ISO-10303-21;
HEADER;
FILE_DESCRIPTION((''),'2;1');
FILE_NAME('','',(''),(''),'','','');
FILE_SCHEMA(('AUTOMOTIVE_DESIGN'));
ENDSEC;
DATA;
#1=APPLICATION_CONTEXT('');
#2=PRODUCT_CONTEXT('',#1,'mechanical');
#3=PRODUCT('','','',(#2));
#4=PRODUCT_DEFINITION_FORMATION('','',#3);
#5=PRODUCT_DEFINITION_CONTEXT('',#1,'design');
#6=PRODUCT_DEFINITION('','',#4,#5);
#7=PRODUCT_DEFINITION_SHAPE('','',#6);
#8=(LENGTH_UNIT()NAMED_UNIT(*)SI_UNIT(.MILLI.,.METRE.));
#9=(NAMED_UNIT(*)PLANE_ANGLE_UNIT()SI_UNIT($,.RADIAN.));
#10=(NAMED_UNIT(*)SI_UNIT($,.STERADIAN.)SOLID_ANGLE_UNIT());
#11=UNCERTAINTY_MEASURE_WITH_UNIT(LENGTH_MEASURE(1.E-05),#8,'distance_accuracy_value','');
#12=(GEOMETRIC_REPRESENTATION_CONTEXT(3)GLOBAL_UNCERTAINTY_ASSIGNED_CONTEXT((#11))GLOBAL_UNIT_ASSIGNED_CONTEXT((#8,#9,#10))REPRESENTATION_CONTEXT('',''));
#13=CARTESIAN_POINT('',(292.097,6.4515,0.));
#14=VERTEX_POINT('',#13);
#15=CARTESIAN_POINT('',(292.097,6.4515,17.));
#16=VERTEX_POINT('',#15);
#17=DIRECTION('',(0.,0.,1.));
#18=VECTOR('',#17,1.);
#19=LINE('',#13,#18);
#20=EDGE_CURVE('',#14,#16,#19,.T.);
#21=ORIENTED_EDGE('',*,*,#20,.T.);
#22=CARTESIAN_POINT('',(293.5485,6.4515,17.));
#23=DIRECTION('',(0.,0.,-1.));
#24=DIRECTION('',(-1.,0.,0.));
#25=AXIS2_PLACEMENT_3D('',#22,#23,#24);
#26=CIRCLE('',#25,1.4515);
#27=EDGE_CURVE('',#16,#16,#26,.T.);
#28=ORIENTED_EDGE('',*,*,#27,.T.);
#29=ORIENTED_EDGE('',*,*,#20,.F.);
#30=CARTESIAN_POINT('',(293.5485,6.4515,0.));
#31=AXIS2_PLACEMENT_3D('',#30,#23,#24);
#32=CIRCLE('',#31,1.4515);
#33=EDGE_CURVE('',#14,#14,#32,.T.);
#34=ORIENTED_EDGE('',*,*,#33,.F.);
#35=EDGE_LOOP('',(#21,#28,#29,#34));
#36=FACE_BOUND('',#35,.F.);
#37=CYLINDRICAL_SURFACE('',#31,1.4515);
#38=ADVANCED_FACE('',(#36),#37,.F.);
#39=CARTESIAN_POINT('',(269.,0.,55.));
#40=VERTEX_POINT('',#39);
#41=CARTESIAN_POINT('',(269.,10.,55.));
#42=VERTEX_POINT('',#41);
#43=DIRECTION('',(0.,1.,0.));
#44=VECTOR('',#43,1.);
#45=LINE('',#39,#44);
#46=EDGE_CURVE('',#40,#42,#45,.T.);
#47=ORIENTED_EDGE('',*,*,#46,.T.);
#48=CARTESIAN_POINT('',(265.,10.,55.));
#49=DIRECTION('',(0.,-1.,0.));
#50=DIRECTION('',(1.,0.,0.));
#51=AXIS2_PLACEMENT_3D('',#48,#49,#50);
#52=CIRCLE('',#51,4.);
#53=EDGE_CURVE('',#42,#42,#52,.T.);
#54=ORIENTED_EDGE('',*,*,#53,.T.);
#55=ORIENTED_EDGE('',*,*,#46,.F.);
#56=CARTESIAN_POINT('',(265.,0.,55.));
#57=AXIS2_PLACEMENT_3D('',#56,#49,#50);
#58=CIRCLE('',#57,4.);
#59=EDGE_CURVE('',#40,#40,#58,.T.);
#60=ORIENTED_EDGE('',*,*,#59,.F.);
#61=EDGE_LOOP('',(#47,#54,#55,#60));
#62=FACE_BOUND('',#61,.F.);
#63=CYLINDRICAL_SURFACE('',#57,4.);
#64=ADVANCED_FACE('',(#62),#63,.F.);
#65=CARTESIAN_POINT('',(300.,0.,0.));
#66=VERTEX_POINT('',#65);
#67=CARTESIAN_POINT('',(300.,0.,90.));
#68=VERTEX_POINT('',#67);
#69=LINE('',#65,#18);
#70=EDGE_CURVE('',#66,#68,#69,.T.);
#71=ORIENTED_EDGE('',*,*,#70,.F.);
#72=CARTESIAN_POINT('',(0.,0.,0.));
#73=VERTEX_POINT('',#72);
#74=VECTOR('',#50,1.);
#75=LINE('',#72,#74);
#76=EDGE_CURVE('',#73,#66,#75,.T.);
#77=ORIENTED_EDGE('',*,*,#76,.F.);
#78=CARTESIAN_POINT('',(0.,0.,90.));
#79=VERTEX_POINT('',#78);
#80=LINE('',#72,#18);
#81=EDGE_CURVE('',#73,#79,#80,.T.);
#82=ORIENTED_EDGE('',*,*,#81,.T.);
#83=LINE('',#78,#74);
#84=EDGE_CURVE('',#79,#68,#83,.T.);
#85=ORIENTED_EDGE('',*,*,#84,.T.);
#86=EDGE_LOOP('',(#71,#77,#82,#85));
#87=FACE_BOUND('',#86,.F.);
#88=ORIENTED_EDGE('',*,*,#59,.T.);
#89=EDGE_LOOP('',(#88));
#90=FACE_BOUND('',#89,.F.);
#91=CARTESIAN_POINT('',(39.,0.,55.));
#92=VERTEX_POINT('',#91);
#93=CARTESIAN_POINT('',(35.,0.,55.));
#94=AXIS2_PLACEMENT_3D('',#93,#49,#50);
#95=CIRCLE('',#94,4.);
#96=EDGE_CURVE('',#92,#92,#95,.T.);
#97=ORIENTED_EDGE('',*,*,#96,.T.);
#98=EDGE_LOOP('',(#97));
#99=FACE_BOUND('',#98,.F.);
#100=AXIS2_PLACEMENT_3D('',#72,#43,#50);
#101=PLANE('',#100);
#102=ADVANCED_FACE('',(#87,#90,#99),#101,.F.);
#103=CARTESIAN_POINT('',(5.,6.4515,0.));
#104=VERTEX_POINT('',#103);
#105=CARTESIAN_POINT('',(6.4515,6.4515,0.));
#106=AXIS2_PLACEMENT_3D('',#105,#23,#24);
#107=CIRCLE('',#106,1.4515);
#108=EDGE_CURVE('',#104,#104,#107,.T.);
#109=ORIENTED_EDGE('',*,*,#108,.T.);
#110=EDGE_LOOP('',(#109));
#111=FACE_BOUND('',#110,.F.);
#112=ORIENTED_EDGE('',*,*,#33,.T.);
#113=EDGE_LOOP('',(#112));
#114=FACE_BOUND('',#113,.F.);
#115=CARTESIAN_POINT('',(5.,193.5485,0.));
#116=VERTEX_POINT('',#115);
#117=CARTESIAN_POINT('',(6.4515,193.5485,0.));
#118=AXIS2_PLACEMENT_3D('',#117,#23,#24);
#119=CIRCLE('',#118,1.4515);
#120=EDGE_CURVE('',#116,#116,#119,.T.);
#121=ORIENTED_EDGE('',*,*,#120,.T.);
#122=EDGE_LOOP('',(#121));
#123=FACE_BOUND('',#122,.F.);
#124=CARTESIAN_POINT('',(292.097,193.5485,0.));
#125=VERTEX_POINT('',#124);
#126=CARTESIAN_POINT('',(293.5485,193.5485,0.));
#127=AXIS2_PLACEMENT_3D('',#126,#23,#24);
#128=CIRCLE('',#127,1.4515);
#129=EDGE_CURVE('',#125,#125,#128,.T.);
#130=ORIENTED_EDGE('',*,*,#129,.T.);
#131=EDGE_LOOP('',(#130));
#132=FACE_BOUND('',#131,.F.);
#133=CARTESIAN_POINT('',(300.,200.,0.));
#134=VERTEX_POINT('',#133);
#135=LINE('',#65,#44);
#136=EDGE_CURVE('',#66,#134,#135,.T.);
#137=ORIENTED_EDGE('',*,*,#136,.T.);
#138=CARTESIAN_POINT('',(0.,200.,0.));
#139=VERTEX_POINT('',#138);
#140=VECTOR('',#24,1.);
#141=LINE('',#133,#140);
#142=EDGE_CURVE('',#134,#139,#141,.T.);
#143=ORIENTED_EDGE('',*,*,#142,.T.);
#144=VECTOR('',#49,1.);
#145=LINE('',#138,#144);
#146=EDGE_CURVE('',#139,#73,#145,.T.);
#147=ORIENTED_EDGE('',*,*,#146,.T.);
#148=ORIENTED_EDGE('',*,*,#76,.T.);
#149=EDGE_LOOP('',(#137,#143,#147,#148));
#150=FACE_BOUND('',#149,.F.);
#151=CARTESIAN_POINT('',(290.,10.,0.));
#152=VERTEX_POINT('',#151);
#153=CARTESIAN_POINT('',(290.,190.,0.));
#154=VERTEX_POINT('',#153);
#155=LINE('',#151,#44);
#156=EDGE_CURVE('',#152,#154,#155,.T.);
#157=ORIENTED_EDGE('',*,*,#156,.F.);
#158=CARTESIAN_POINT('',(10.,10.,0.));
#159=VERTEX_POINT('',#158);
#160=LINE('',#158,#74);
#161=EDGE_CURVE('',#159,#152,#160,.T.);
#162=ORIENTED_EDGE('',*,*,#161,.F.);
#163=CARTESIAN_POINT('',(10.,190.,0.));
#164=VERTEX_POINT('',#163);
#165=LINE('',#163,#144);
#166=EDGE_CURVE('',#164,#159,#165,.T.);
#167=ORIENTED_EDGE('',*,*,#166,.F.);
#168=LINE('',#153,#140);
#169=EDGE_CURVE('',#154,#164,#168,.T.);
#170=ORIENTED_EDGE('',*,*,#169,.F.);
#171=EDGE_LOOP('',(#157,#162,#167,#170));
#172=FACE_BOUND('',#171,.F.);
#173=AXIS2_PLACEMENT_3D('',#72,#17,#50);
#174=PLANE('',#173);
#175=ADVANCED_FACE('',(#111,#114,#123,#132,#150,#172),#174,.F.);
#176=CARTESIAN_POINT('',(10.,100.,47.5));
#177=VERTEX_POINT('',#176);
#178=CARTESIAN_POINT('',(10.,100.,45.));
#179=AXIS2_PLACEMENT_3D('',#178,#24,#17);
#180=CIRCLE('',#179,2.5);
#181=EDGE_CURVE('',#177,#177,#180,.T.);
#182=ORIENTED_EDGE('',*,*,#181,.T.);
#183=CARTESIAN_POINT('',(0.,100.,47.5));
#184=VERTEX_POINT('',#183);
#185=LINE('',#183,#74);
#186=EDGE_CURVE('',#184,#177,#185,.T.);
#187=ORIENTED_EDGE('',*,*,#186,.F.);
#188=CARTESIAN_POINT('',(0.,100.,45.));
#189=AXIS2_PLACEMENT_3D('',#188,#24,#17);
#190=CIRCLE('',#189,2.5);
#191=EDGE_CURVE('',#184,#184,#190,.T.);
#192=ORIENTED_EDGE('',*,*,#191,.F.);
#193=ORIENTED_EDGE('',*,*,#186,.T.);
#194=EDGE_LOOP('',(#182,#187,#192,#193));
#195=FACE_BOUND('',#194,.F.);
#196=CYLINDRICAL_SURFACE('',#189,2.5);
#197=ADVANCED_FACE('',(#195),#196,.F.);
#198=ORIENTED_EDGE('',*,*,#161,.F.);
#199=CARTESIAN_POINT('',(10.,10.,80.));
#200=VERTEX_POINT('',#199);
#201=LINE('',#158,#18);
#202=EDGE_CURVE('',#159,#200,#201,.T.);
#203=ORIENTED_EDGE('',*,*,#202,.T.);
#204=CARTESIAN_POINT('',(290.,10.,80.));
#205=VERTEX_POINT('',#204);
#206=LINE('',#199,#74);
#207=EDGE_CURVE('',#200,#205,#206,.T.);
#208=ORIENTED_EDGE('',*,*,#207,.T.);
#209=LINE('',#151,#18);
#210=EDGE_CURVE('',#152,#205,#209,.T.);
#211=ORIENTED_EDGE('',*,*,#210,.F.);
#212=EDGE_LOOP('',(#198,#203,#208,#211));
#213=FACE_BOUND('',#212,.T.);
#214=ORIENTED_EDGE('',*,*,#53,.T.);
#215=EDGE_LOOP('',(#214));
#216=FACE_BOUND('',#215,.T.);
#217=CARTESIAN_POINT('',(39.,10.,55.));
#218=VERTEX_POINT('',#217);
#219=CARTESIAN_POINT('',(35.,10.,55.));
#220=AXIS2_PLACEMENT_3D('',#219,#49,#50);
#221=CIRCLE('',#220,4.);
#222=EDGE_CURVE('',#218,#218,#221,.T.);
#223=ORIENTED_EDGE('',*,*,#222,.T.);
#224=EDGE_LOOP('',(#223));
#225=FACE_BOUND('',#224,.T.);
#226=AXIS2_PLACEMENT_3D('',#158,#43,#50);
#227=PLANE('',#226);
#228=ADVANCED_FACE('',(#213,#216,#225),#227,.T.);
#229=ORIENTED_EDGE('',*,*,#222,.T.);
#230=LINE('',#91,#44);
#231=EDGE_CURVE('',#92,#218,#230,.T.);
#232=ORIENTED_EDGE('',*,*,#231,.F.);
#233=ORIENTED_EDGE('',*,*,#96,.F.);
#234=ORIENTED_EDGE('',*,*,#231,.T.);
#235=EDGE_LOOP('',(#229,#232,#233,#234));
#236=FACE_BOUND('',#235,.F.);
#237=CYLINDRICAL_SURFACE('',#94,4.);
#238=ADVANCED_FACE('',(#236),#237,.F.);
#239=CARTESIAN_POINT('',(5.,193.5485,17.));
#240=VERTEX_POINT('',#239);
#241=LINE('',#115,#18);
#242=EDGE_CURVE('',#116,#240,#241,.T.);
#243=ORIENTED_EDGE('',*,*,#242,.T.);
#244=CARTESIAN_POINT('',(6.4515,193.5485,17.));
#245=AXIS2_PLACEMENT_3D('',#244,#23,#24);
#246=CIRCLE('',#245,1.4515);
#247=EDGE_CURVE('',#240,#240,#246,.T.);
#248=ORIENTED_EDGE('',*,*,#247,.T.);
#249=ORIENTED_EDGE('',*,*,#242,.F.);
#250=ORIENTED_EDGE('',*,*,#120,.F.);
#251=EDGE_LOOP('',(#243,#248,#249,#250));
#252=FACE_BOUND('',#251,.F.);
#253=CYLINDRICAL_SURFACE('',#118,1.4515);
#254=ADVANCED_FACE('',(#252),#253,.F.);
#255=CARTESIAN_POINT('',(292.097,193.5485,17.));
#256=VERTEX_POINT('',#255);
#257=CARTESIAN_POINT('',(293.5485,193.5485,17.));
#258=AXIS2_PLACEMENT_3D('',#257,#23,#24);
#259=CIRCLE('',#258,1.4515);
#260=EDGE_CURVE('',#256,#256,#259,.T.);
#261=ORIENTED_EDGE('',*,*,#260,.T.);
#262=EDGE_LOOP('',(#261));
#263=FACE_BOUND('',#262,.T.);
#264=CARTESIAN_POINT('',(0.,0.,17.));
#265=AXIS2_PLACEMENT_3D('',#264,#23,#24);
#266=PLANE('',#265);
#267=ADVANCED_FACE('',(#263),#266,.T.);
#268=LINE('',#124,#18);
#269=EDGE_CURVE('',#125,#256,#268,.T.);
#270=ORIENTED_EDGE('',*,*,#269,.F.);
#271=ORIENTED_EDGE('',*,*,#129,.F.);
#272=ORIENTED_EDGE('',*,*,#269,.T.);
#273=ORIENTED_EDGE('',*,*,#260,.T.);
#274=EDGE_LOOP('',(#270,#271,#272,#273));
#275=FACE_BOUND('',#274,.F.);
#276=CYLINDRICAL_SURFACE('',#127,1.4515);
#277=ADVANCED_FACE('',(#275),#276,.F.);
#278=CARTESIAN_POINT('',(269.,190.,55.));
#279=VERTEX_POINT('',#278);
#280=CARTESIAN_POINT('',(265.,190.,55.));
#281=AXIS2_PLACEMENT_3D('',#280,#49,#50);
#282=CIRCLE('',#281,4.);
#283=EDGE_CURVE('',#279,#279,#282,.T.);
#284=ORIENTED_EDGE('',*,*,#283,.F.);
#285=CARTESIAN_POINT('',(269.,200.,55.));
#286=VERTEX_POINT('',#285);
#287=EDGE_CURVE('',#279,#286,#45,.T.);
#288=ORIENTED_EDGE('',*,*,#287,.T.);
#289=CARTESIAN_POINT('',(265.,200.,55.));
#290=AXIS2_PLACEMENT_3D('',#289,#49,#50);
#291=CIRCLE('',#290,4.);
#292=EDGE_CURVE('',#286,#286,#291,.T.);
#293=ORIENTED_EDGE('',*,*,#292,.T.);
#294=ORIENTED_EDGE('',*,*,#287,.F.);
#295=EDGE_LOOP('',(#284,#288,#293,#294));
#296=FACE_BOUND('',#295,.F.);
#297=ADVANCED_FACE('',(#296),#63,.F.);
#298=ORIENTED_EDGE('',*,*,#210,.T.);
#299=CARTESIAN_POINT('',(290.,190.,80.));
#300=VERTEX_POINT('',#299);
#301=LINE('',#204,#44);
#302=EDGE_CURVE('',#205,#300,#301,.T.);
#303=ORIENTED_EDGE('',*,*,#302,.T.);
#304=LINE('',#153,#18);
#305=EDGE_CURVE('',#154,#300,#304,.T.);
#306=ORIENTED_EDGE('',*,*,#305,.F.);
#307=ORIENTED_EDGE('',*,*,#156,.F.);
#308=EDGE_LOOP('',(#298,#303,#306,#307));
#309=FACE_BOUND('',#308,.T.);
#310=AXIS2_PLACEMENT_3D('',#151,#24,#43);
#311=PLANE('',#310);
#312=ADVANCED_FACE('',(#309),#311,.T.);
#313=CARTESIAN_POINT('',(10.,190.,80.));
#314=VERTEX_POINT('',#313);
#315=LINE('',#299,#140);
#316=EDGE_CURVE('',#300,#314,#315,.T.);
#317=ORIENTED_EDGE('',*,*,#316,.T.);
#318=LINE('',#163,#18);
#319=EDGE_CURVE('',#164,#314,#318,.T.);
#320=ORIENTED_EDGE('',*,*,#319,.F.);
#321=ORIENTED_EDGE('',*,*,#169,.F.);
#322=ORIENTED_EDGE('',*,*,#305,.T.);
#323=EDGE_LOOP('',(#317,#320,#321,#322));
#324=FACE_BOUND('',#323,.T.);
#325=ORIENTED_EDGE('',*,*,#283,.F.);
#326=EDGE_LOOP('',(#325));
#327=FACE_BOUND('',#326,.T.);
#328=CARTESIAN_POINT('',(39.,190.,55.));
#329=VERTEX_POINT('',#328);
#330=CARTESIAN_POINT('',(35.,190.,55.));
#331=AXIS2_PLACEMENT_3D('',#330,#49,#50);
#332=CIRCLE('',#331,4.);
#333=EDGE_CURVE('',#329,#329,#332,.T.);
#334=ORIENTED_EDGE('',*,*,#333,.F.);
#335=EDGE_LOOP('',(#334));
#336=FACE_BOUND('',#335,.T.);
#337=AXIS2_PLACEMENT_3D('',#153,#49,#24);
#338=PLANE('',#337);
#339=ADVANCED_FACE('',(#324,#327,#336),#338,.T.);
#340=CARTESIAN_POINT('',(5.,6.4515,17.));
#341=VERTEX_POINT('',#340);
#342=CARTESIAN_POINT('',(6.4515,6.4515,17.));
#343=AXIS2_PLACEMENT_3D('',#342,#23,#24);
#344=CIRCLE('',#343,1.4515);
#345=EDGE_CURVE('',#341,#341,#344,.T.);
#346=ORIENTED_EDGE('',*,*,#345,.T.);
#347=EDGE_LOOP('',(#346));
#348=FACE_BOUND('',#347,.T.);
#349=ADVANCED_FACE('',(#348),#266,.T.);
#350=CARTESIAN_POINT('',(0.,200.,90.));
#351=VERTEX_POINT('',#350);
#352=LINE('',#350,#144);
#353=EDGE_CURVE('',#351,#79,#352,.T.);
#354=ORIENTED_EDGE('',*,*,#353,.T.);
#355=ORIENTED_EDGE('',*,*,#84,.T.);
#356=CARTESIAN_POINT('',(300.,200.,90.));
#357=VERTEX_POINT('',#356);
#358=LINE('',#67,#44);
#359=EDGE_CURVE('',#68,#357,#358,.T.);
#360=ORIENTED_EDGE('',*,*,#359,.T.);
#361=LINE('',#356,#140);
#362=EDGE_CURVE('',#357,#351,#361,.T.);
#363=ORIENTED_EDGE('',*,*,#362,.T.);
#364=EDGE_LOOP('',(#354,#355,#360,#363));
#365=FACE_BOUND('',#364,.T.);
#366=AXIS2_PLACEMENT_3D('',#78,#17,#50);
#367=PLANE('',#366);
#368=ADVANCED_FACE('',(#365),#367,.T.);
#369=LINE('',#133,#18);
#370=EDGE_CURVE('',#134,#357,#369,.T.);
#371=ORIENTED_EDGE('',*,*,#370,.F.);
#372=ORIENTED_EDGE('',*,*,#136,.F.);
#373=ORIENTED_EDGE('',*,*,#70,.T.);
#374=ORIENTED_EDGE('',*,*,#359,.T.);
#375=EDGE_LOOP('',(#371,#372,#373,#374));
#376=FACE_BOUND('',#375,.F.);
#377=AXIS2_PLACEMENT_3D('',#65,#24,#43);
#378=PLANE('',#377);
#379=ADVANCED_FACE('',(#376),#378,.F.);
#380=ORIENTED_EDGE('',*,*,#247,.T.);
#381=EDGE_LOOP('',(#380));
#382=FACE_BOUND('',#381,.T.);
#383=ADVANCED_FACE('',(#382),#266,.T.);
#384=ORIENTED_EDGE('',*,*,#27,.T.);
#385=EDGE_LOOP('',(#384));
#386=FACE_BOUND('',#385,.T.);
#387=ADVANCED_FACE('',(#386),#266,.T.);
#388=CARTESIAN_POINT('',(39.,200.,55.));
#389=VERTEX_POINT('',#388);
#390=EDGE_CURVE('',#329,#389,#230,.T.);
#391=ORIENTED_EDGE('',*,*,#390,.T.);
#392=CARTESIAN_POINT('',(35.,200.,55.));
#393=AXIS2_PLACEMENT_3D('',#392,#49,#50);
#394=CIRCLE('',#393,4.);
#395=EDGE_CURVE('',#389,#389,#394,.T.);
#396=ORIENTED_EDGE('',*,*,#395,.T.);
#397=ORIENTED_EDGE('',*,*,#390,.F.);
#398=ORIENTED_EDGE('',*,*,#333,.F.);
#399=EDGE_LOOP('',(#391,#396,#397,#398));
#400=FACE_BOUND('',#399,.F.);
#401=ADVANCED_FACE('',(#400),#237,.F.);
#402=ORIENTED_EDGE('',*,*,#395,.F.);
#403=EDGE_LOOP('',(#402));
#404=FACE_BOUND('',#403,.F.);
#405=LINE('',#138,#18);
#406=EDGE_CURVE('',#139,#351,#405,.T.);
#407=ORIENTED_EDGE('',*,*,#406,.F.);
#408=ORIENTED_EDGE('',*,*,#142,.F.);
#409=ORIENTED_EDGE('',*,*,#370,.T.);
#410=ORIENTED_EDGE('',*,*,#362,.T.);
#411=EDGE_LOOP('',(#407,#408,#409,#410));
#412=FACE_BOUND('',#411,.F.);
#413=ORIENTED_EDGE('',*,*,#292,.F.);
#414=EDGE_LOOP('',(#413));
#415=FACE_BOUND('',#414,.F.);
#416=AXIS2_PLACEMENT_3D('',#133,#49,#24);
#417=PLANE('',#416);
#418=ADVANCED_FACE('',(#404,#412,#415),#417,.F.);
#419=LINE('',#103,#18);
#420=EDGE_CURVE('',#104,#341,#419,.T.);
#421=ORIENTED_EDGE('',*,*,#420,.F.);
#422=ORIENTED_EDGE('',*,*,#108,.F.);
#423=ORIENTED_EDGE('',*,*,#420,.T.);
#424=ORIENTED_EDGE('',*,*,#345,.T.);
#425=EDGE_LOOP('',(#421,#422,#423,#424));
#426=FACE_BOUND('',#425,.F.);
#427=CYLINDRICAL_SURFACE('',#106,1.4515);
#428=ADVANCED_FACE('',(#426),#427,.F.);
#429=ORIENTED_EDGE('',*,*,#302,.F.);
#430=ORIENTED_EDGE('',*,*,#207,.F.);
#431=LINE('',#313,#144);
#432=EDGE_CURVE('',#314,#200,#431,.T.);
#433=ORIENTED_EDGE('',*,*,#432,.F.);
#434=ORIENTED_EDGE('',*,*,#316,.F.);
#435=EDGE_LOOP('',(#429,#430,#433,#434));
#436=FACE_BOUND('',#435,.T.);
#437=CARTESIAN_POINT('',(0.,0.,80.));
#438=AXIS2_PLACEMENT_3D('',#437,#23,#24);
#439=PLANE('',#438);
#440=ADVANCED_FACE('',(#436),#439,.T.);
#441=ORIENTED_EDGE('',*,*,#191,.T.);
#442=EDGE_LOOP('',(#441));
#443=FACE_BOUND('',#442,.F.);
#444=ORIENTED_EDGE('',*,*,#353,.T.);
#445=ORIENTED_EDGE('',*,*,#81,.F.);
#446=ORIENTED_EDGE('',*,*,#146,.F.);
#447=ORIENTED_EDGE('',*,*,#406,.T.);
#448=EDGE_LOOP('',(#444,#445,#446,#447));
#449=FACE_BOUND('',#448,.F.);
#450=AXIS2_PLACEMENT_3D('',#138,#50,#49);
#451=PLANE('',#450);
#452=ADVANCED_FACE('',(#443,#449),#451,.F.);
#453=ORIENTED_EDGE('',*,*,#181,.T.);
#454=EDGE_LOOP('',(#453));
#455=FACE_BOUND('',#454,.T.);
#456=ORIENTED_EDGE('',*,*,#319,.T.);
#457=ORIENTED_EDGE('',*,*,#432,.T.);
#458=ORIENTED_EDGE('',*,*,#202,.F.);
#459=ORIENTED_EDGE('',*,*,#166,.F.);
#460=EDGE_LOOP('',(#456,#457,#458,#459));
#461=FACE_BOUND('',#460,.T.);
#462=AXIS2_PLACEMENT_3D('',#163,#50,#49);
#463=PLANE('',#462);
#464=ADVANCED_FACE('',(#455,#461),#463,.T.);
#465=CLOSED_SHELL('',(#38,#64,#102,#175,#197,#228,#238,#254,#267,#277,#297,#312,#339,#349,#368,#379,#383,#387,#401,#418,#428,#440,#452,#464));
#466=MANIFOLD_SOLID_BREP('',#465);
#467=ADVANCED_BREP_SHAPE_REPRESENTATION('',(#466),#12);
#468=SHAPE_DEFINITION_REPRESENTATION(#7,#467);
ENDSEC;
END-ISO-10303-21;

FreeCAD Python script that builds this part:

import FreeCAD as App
import Part
import Sketcher
Q = App.Units.Quantity


def add_polygon(sketch, points):
    """Adds a closed chain of lines whose ends are joined by coincident constraints."""
    first, n = sketch.GeometryCount, len(points)
    for a, b in zip(points, points[1:] + points[:1]):
        sketch.addGeometry(Part.LineSegment(App.Vector(*a, 0), App.Vector(*b, 0)), False)
    for i in range(n):
        sketch.addConstraint(Sketcher.Constraint("Coincident", first + i, 2, first + (i + 1) % n, 1))

doc = App.newDocument("Part")
body = doc.addObject("PartDesign::Body", "Body")

# Sketch on XY plane
sketch1 = doc.addObject("Sketcher::SketchObject", "Sketch")
body.addObject(sketch1)
sketch1.AttachmentSupport = (doc.XY_Plane, [""])
sketch1.MapMode = "FlatFace"
add_polygon(sketch1, [(0, 200), (0, 0), (300, 0), (300, 200)])  # lines 0-3
sketch1.addConstraint(Sketcher.Constraint("Vertical", 0))
sketch1.addConstraint(Sketcher.Constraint("Horizontal", 1))
sketch1.addConstraint(Sketcher.Constraint("Vertical", 2))
sketch1.addConstraint(Sketcher.Constraint("Horizontal", 3))
sketch1.addConstraint(Sketcher.Constraint("Coincident", 0, 2, -1, 1))
sketch1.addConstraint(Sketcher.Constraint("DistanceX", 1, 1, 1, 2, Q("300 mm")))
sketch1.addConstraint(Sketcher.Constraint("DistanceY", 0, 2, 0, 1, Q("200 mm")))
pad1 = doc.addObject("PartDesign::Pad", "Pad")
body.addObject(pad1)
pad1.Profile = sketch1
pad1.Length = 90

# Sketch on XY plane
sketch2 = doc.addObject("Sketcher::SketchObject", "Sketch001")
body.addObject(sketch2)
sketch2.AttachmentSupport = (doc.XY_Plane, [""])
sketch2.MapMode = "FlatFace"
add_polygon(sketch2, [(290, 10), (10, 10), (10, 190), (290, 190)])  # lines 0-3
sketch2.addConstraint(Sketcher.Constraint("Horizontal", 0))
sketch2.addConstraint(Sketcher.Constraint("Vertical", 1))
sketch2.addConstraint(Sketcher.Constraint("Horizontal", 2))
sketch2.addConstraint(Sketcher.Constraint("Vertical", 3))
sketch2.addConstraint(Sketcher.Constraint("DistanceX", 0, 2, 0, 1, Q("280 mm")))
sketch2.addConstraint(Sketcher.Constraint("DistanceY", 1, 1, 1, 2, Q("180 mm")))
sketch2.addConstraint(Sketcher.Constraint("DistanceX", -1, 1, 0, 2, Q("10 mm")))
sketch2.addConstraint(Sketcher.Constraint("DistanceY", -1, 1, 0, 2, Q("10 mm")))
pocket1 = doc.addObject("PartDesign::Pocket", "Pocket")
body.addObject(pocket1)
pocket1.Profile = sketch2
pocket1.Length = 80
pocket1.Reversed = True

# Sketch on XY plane
sketch3 = doc.addObject("Sketcher::SketchObject", "Sketch002")
body.addObject(sketch3)
sketch3.AttachmentSupport = (doc.XY_Plane, [""])
sketch3.MapMode = "FlatFace"
sketch3.addGeometry(Part.Circle(App.Vector(6.4515, 6.4515, 0), App.Vector(0, 0, 1), 1.4515), False)
sketch3.addGeometry(Part.Circle(App.Vector(6.4515, 193.5485, 0), App.Vector(0, 0, 1), 1.4515), False)
sketch3.addGeometry(Part.Circle(App.Vector(293.5485, 193.5485, 0), App.Vector(0, 0, 1), 1.4515), False)
sketch3.addGeometry(Part.Circle(App.Vector(293.5485, 6.4515, 0), App.Vector(0, 0, 1), 1.4515), False)
sketch3.addConstraint(Sketcher.Constraint("Equal", 0, 1))
sketch3.addConstraint(Sketcher.Constraint("Equal", 1, 2))
sketch3.addConstraint(Sketcher.Constraint("Equal", 2, 3))
sketch3.addConstraint(Sketcher.Constraint("Horizontal", 1, 3, 2, 3))
sketch3.addConstraint(Sketcher.Constraint("Horizontal", 0, 3, 3, 3))
sketch3.addConstraint(Sketcher.Constraint("Vertical", 0, 3, 1, 3))
sketch3.addConstraint(Sketcher.Constraint("Vertical", 2, 3, 3, 3))
sketch3.addConstraint(Sketcher.Constraint("Diameter", 0, Q("2.903 mm")))
sketch3.addConstraint(Sketcher.Constraint("DistanceY", 0, 3, 1, 3, Q("187.097 mm")))
sketch3.addConstraint(Sketcher.Constraint("DistanceX", 1, 3, 2, 3, Q("287.097 mm")))
sketch3.addConstraint(Sketcher.Constraint("DistanceX", -1, 1, 0, 3, Q("6.4515 mm")))
sketch3.addConstraint(Sketcher.Constraint("DistanceY", -1, 1, 0, 3, Q("6.4515 mm")))
pocket2 = doc.addObject("PartDesign::Pocket", "Pocket001")
body.addObject(pocket2)
pocket2.Profile = sketch3
pocket2.Length = 17
pocket2.Reversed = True

# Sketch on XZ plane
sketch4 = doc.addObject("Sketcher::SketchObject", "Sketch003")
body.addObject(sketch4)
sketch4.AttachmentSupport = (doc.XZ_Plane, [""])
sketch4.MapMode = "FlatFace"
sketch4.addGeometry(Part.Circle(App.Vector(265, 55, 0), App.Vector(0, 0, 1), 4), False)
sketch4.addGeometry(Part.Circle(App.Vector(35, 55, 0), App.Vector(0, 0, 1), 4), False)
sketch4.addConstraint(Sketcher.Constraint("Equal", 0, 1))
sketch4.addConstraint(Sketcher.Constraint("Horizontal", 0, 3, 1, 3))
sketch4.addConstraint(Sketcher.Constraint("Diameter", 0, Q("8 mm")))
sketch4.addConstraint(Sketcher.Constraint("DistanceX", -1, 1, 1, 3, Q("35 mm")))
sketch4.addConstraint(Sketcher.Constraint("DistanceX", -1, 1, 0, 3, Q("265 mm")))
sketch4.addConstraint(Sketcher.Constraint("DistanceY", -1, 1, 0, 3, Q("55 mm")))
pocket3 = doc.addObject("PartDesign::Pocket", "Pocket002")
body.addObject(pocket3)
pocket3.Profile = sketch4
pocket3.Type = "ThroughAll"

# Sketch on YZ plane
sketch5 = doc.addObject("Sketcher::SketchObject", "Sketch004")
body.addObject(sketch5)
sketch5.AttachmentSupport = (doc.YZ_Plane, [""])
sketch5.MapMode = "FlatFace"
sketch5.addGeometry(Part.Circle(App.Vector(100, 45, 0), App.Vector(0, 0, 1), 2.5), False)
sketch5.addConstraint(Sketcher.Constraint("Diameter", 0, Q("5 mm")))
sketch5.addConstraint(Sketcher.Constraint("DistanceX", -1, 1, 0, 3, Q("100 mm")))
sketch5.addConstraint(Sketcher.Constraint("DistanceY", -1, 1, 0, 3, Q("45 mm")))
pocket4 = doc.addObject("PartDesign::Pocket", "Pocket003")
body.addObject(pocket4)
pocket4.Profile = sketch5
pocket4.Length = 10
pocket4.Reversed = True

doc.recompute()
